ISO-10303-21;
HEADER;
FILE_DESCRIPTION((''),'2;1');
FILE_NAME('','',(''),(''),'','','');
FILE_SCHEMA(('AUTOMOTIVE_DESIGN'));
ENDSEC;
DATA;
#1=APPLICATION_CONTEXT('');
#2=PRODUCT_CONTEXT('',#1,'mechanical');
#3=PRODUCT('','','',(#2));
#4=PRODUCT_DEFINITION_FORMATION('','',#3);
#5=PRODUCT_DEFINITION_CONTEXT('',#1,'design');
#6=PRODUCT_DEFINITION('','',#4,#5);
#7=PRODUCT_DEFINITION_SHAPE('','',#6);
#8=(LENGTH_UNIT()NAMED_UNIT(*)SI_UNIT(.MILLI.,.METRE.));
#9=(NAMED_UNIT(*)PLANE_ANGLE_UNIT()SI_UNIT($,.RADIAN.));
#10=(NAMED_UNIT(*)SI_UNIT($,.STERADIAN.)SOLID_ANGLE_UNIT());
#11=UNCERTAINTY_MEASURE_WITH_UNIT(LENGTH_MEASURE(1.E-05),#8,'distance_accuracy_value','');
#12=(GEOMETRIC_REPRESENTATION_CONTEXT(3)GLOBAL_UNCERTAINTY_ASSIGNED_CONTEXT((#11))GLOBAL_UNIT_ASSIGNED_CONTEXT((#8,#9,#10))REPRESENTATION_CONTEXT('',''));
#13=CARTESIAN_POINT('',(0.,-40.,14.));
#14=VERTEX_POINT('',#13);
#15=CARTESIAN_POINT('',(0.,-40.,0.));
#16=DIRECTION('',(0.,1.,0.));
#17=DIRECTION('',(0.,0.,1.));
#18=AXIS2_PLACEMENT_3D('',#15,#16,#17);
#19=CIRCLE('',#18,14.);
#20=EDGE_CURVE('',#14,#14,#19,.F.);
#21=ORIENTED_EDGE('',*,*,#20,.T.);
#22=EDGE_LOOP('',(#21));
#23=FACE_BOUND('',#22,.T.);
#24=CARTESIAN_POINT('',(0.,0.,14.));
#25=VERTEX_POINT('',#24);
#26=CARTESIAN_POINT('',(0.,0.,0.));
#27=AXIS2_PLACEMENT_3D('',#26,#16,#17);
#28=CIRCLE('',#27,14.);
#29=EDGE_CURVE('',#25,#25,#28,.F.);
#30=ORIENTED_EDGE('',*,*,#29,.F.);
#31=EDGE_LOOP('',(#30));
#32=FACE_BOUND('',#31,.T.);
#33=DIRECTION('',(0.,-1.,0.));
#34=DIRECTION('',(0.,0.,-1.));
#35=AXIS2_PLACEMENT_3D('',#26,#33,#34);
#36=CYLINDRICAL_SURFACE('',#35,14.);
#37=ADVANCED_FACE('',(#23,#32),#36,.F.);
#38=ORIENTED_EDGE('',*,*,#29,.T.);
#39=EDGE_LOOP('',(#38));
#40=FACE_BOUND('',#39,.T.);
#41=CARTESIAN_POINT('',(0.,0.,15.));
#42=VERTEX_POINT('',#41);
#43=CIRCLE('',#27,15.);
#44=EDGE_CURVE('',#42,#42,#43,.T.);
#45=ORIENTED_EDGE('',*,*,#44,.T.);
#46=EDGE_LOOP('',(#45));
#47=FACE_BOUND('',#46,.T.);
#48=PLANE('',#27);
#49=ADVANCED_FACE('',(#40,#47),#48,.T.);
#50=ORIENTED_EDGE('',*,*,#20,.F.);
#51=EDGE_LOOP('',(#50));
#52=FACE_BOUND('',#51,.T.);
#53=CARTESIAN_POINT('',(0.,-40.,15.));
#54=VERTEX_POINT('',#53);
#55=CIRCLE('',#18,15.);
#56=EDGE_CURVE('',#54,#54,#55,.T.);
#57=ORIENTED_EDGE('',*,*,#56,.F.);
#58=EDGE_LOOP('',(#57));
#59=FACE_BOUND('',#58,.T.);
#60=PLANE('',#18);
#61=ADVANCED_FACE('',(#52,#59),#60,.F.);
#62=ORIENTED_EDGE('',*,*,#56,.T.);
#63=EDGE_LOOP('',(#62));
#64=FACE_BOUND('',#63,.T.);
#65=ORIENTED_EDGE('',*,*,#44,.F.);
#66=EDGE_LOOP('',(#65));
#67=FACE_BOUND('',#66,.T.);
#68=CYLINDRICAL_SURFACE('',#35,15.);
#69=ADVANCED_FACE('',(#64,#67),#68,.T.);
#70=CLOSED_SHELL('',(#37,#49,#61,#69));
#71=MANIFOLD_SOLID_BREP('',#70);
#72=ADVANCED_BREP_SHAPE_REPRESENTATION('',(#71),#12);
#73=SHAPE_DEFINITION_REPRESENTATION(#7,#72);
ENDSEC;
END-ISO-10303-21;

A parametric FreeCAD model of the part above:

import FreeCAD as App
import Part
import Sketcher
Q = App.Units.Quantity

doc = App.newDocument("Part")
body = doc.addObject("PartDesign::Body", "Body")

sketch1 = doc.addObject("Sketcher::SketchObject", "Sketch")
body.addObject(sketch1)
sketch1.AttachmentSupport = (doc.XZ_Plane, [""])
sketch1.MapMode = "FlatFace"
sketch1.addGeometry([
    Part.Circle(App.Vector(0, 0, 0), App.Vector(0, 0, 1), 15),
    Part.Circle(App.Vector(0, 0, 0), App.Vector(0, 0, 1), 14),
], False)
sketch1.addConstraint([
    Sketcher.Constraint("Coincident", 0, 3, -1, 1),
    Sketcher.Constraint("Coincident", 1, 3, -1, 1),
    Sketcher.Constraint("Diameter", 0, Q("30 mm")),
    Sketcher.Constraint("Diameter", 1, Q("28 mm")),
])

sketch2 = doc.addObject("Sketcher::SketchObject", "Sketch001")
body.addObject(sketch2)
sketch2.AttachmentSupport = (doc.XY_Plane, [""])
sketch2.MapMode = "FlatFace"
sketch2.addGeometry(Part.LineSegment(App.Vector(0, 0, 0), App.Vector(0, -40, 0)), False)
sketch2.addConstraint([
    Sketcher.Constraint("Vertical", 0),
    Sketcher.Constraint("Coincident", 0, 1, -1, 1),
    Sketcher.Constraint("DistanceY", 0, 2, 0, 1, Q("40 mm")),
])
doc.recompute()

additivepipe = doc.addObject("PartDesign::AdditivePipe", "AdditivePipe")
body.addObject(additivepipe)
additivepipe.Profile = sketch1
additivepipe.Spine = (sketch2, ["Edge1"])

doc.recompute()
